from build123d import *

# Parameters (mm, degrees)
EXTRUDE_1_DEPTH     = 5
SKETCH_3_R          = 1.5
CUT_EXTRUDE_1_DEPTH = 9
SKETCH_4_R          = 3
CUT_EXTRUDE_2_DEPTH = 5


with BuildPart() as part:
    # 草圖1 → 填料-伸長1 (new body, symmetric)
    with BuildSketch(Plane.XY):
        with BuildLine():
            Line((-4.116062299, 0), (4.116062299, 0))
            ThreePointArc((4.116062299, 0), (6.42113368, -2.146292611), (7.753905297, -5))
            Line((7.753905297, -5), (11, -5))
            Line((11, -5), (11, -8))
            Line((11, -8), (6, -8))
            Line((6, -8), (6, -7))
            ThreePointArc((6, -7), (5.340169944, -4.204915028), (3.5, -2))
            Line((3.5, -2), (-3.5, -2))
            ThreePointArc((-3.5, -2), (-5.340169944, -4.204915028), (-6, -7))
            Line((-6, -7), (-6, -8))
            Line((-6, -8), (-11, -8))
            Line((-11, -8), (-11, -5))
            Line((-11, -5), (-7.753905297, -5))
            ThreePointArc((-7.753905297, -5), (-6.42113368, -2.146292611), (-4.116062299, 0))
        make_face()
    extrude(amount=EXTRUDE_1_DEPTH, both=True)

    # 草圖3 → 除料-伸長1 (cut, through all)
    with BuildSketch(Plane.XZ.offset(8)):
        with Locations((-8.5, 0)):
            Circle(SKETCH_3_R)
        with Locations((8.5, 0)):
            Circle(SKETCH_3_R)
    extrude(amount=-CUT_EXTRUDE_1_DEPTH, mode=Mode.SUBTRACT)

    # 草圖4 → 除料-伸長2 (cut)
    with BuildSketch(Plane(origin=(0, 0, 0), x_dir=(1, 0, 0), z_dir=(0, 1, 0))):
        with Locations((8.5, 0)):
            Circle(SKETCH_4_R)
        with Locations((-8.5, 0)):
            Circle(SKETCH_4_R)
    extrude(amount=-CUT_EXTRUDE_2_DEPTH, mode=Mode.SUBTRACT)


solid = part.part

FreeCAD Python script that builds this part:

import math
import FreeCAD as App
import Part
import Sketcher

doc = App.newDocument("Part")
body = doc.addObject("PartDesign::Body", "Body")

# Sketch on XY plane
sketch1 = body.newObject("Sketcher::SketchObject", "Sketch")
sketch1.AttachmentSupport = (doc.getObject("XY_Plane"), [""])
sketch1.MapMode = "FlatFace"
sketch1.addGeometry(Part.LineSegment(App.Vector(4.1, 0, 0), App.Vector(-4.1, 0, 0)), False)
sketch1.addGeometry(Part.ArcOfCircle(Part.Circle(App.Vector(0.3, -7, 0), App.Vector(0, 0, 1), 8.3), math.radians(122), math.radians(166)), False)
sketch1.addGeometry(Part.LineSegment(App.Vector(-7.8, -5, 0), App.Vector(-11, -5, 0)), False)
sketch1.addGeometry(Part.LineSegment(App.Vector(-11, -5, 0), App.Vector(-11, -8, 0)), False)
sketch1.addGeometry(Part.LineSegment(App.Vector(-11, -8, 0), App.Vector(-6, -8, 0)), False)
sketch1.addGeometry(Part.LineSegment(App.Vector(-6, -8, 0), App.Vector(-6, -7, 0)), False)
sketch1.addGeometry(Part.ArcOfCircle(Part.Circle(App.Vector(0.2, -7, 0), App.Vector(0, 0, 1), 6.2), math.radians(127), math.radians(180)), False)
sketch1.addGeometry(Part.LineSegment(App.Vector(-3.5, -2, 0), App.Vector(3.5, -2, 0)), False)
sketch1.addGeometry(Part.ArcOfCircle(Part.Circle(App.Vector(-0.2, -7, 0), App.Vector(0, 0, 1), 6.2), math.radians(0), math.radians(53)), False)
sketch1.addGeometry(Part.LineSegment(App.Vector(6, -7, 0), App.Vector(6, -8, 0)), False)
sketch1.addGeometry(Part.LineSegment(App.Vector(6, -8, 0), App.Vector(11, -8, 0)), False)
sketch1.addGeometry(Part.LineSegment(App.Vector(11, -8, 0), App.Vector(11, -5, 0)), False)
sketch1.addGeometry(Part.LineSegment(App.Vector(11, -5, 0), App.Vector(7.8, -5, 0)), False)
sketch1.addGeometry(Part.ArcOfCircle(Part.Circle(App.Vector(-0.3, -7, 0), App.Vector(0, 0, 1), 8.3), math.radians(14), math.radians(58)), False)
sketch1.addConstraint(Sketcher.Constraint("Coincident", 0, 2, 1, 1))
sketch1.addConstraint(Sketcher.Constraint("Coincident", 1, 2, 2, 1))
sketch1.addConstraint(Sketcher.Constraint("Coincident", 2, 2, 3, 1))
sketch1.addConstraint(Sketcher.Constraint("Coincident", 3, 2, 4, 1))
sketch1.addConstraint(Sketcher.Constraint("Coincident", 4, 2, 5, 1))
sketch1.addConstraint(Sketcher.Constraint("Tangent", 5, 2, 6, 2))
sketch1.addConstraint(Sketcher.Constraint("Coincident", 6, 1, 7, 1))
sketch1.addConstraint(Sketcher.Constraint("Coincident", 7, 2, 8, 2))
sketch1.addConstraint(Sketcher.Constraint("Tangent", 8, 1, 9, 1))
sketch1.addConstraint(Sketcher.Constraint("Coincident", 9, 2, 10, 1))
sketch1.addConstraint(Sketcher.Constraint("Coincident", 10, 2, 11, 1))
sketch1.addConstraint(Sketcher.Constraint("Coincident", 11, 2, 12, 1))
sketch1.addConstraint(Sketcher.Constraint("Coincident", 12, 2, 13, 1))
sketch1.addConstraint(Sketcher.Constraint("Coincident", 13, 2, 0, 1))
sketch1.addConstraint(Sketcher.Constraint("Horizontal", 0))
sketch1.addConstraint(Sketcher.Constraint("Horizontal", 2))
sketch1.addConstraint(Sketcher.Constraint("Vertical", 3))
sketch1.addConstraint(Sketcher.Constraint("Horizontal", 4))
sketch1.addConstraint(Sketcher.Constraint("Vertical", 5))
sketch1.addConstraint(Sketcher.Constraint("Horizontal", 7))
sketch1.addConstraint(Sketcher.Constraint("Vertical", 9))
sketch1.addConstraint(Sketcher.Constraint("Horizontal", 10))
sketch1.addConstraint(Sketcher.Constraint("Vertical", 11))
sketch1.addConstraint(Sketcher.Constraint("Horizontal", 12))
sketch1.addConstraint(Sketcher.Constraint("Coincident", 6, 3, 1, 3))
sketch1.addConstraint(Sketcher.Constraint("Coincident", 13, 3, 8, 3))
sketch1.addConstraint(Sketcher.Constraint("Equal", 6, 8))
sketch1.addConstraint(Sketcher.Constraint("Equal", 1, 13))
sketch1.addConstraint(Sketcher.Constraint("Symmetric", 0, 2, 13, 2, -1, 1))
sketch1.addConstraint(Sketcher.Constraint("Symmetric", 4, 2, 9, 2, -2))
sketch1.addConstraint(Sketcher.Constraint("Symmetric", 2, 2, 11, 2, -2))
sketch1.addConstraint(Sketcher.Constraint("DistanceX", 4, 1, 4, 2, 5.0))
sketch1.addConstraint(Sketcher.Constraint("DistanceX", 7, 1, 7, 2, 7.0))
sketch1.addConstraint(Sketcher.Constraint("DistanceY", 3, 2, 3, 1, 3.0))
sketch1.addConstraint(Sketcher.Constraint("DistanceY", 5, 1, 5, 2, 1.0))
sketch1.addConstraint(Sketcher.Constraint("Radius", 1, 8.25))
sketch1.addConstraint(Sketcher.Constraint("Radius", 6, 6.25))
sketch1.addConstraint(Sketcher.Constraint("DistanceY", 1, 3, -1, 1, 7.0))
sketch1.addConstraint(Sketcher.Constraint("DistanceX", 2, 2, -1, 1, 11.0))
pad1 = body.newObject("PartDesign::Pad", "Pad")
pad1.Profile = sketch1
pad1.Length = 10
pad1.Midplane = True

# Sketch on XZ plane
sketch2 = body.newObject("Sketcher::SketchObject", "Sketch001")
sketch2.AttachmentSupport = (doc.getObject("XZ_Plane"), [""])
sketch2.MapMode = "FlatFace"
sketch2.AttachmentOffset = App.Placement(App.Vector(0, 0, 8), App.Rotation())
sketch2.addGeometry(Part.Circle(App.Vector(-8.5, 0, 0), App.Vector(0, 0, 1), 1.5), False)
sketch2.addGeometry(Part.Circle(App.Vector(8.5, 0, 0), App.Vector(0, 0, 1), 1.5), False)
sketch2.addConstraint(Sketcher.Constraint("Equal", 0, 1))
sketch2.addConstraint(Sketcher.Constraint("Symmetric", 0, 3, 1, 3, -1, 1))
sketch2.addConstraint(Sketcher.Constraint("PointOnObject", 0, 3, -1))
sketch2.addConstraint(Sketcher.Constraint("Diameter", 0, 3.0))
sketch2.addConstraint(Sketcher.Constraint("DistanceX", 0, 3, 1, 3, 17.0))
pocket1 = body.newObject("PartDesign::Pocket", "Pocket")
pocket1.Profile = sketch2
pocket1.Type = "ThroughAll"

# Sketch on XZ plane
sketch3 = body.newObject("Sketcher::SketchObject", "Sketch002")
sketch3.AttachmentSupport = (doc.getObject("XZ_Plane"), [""])
sketch3.MapMode = "FlatFace"
sketch3.addGeometry(Part.Circle(App.Vector(8.5, 0, 0), App.Vector(0, 0, 1), 3), False)
sketch3.addGeometry(Part.Circle(App.Vector(-8.5, 0, 0), App.Vector(0, 0, 1), 3), False)
sketch3.addConstraint(Sketcher.Constraint("Equal", 0, 1))
sketch3.addConstraint(Sketcher.Constraint("Symmetric", 0, 3, 1, 3, -1, 1))
sketch3.addConstraint(Sketcher.Constraint("PointOnObject", 0, 3, -1))
sketch3.addConstraint(Sketcher.Constraint("Diameter", 0, 6.0))
sketch3.addConstraint(Sketcher.Constraint("DistanceX", 1, 3, 0, 3, 17.0))
pocket2 = body.newObject("PartDesign::Pocket", "Pocket001")
pocket2.Profile = sketch3
pocket2.Length = 5
pocket2.Reversed = True

doc.recompute()
